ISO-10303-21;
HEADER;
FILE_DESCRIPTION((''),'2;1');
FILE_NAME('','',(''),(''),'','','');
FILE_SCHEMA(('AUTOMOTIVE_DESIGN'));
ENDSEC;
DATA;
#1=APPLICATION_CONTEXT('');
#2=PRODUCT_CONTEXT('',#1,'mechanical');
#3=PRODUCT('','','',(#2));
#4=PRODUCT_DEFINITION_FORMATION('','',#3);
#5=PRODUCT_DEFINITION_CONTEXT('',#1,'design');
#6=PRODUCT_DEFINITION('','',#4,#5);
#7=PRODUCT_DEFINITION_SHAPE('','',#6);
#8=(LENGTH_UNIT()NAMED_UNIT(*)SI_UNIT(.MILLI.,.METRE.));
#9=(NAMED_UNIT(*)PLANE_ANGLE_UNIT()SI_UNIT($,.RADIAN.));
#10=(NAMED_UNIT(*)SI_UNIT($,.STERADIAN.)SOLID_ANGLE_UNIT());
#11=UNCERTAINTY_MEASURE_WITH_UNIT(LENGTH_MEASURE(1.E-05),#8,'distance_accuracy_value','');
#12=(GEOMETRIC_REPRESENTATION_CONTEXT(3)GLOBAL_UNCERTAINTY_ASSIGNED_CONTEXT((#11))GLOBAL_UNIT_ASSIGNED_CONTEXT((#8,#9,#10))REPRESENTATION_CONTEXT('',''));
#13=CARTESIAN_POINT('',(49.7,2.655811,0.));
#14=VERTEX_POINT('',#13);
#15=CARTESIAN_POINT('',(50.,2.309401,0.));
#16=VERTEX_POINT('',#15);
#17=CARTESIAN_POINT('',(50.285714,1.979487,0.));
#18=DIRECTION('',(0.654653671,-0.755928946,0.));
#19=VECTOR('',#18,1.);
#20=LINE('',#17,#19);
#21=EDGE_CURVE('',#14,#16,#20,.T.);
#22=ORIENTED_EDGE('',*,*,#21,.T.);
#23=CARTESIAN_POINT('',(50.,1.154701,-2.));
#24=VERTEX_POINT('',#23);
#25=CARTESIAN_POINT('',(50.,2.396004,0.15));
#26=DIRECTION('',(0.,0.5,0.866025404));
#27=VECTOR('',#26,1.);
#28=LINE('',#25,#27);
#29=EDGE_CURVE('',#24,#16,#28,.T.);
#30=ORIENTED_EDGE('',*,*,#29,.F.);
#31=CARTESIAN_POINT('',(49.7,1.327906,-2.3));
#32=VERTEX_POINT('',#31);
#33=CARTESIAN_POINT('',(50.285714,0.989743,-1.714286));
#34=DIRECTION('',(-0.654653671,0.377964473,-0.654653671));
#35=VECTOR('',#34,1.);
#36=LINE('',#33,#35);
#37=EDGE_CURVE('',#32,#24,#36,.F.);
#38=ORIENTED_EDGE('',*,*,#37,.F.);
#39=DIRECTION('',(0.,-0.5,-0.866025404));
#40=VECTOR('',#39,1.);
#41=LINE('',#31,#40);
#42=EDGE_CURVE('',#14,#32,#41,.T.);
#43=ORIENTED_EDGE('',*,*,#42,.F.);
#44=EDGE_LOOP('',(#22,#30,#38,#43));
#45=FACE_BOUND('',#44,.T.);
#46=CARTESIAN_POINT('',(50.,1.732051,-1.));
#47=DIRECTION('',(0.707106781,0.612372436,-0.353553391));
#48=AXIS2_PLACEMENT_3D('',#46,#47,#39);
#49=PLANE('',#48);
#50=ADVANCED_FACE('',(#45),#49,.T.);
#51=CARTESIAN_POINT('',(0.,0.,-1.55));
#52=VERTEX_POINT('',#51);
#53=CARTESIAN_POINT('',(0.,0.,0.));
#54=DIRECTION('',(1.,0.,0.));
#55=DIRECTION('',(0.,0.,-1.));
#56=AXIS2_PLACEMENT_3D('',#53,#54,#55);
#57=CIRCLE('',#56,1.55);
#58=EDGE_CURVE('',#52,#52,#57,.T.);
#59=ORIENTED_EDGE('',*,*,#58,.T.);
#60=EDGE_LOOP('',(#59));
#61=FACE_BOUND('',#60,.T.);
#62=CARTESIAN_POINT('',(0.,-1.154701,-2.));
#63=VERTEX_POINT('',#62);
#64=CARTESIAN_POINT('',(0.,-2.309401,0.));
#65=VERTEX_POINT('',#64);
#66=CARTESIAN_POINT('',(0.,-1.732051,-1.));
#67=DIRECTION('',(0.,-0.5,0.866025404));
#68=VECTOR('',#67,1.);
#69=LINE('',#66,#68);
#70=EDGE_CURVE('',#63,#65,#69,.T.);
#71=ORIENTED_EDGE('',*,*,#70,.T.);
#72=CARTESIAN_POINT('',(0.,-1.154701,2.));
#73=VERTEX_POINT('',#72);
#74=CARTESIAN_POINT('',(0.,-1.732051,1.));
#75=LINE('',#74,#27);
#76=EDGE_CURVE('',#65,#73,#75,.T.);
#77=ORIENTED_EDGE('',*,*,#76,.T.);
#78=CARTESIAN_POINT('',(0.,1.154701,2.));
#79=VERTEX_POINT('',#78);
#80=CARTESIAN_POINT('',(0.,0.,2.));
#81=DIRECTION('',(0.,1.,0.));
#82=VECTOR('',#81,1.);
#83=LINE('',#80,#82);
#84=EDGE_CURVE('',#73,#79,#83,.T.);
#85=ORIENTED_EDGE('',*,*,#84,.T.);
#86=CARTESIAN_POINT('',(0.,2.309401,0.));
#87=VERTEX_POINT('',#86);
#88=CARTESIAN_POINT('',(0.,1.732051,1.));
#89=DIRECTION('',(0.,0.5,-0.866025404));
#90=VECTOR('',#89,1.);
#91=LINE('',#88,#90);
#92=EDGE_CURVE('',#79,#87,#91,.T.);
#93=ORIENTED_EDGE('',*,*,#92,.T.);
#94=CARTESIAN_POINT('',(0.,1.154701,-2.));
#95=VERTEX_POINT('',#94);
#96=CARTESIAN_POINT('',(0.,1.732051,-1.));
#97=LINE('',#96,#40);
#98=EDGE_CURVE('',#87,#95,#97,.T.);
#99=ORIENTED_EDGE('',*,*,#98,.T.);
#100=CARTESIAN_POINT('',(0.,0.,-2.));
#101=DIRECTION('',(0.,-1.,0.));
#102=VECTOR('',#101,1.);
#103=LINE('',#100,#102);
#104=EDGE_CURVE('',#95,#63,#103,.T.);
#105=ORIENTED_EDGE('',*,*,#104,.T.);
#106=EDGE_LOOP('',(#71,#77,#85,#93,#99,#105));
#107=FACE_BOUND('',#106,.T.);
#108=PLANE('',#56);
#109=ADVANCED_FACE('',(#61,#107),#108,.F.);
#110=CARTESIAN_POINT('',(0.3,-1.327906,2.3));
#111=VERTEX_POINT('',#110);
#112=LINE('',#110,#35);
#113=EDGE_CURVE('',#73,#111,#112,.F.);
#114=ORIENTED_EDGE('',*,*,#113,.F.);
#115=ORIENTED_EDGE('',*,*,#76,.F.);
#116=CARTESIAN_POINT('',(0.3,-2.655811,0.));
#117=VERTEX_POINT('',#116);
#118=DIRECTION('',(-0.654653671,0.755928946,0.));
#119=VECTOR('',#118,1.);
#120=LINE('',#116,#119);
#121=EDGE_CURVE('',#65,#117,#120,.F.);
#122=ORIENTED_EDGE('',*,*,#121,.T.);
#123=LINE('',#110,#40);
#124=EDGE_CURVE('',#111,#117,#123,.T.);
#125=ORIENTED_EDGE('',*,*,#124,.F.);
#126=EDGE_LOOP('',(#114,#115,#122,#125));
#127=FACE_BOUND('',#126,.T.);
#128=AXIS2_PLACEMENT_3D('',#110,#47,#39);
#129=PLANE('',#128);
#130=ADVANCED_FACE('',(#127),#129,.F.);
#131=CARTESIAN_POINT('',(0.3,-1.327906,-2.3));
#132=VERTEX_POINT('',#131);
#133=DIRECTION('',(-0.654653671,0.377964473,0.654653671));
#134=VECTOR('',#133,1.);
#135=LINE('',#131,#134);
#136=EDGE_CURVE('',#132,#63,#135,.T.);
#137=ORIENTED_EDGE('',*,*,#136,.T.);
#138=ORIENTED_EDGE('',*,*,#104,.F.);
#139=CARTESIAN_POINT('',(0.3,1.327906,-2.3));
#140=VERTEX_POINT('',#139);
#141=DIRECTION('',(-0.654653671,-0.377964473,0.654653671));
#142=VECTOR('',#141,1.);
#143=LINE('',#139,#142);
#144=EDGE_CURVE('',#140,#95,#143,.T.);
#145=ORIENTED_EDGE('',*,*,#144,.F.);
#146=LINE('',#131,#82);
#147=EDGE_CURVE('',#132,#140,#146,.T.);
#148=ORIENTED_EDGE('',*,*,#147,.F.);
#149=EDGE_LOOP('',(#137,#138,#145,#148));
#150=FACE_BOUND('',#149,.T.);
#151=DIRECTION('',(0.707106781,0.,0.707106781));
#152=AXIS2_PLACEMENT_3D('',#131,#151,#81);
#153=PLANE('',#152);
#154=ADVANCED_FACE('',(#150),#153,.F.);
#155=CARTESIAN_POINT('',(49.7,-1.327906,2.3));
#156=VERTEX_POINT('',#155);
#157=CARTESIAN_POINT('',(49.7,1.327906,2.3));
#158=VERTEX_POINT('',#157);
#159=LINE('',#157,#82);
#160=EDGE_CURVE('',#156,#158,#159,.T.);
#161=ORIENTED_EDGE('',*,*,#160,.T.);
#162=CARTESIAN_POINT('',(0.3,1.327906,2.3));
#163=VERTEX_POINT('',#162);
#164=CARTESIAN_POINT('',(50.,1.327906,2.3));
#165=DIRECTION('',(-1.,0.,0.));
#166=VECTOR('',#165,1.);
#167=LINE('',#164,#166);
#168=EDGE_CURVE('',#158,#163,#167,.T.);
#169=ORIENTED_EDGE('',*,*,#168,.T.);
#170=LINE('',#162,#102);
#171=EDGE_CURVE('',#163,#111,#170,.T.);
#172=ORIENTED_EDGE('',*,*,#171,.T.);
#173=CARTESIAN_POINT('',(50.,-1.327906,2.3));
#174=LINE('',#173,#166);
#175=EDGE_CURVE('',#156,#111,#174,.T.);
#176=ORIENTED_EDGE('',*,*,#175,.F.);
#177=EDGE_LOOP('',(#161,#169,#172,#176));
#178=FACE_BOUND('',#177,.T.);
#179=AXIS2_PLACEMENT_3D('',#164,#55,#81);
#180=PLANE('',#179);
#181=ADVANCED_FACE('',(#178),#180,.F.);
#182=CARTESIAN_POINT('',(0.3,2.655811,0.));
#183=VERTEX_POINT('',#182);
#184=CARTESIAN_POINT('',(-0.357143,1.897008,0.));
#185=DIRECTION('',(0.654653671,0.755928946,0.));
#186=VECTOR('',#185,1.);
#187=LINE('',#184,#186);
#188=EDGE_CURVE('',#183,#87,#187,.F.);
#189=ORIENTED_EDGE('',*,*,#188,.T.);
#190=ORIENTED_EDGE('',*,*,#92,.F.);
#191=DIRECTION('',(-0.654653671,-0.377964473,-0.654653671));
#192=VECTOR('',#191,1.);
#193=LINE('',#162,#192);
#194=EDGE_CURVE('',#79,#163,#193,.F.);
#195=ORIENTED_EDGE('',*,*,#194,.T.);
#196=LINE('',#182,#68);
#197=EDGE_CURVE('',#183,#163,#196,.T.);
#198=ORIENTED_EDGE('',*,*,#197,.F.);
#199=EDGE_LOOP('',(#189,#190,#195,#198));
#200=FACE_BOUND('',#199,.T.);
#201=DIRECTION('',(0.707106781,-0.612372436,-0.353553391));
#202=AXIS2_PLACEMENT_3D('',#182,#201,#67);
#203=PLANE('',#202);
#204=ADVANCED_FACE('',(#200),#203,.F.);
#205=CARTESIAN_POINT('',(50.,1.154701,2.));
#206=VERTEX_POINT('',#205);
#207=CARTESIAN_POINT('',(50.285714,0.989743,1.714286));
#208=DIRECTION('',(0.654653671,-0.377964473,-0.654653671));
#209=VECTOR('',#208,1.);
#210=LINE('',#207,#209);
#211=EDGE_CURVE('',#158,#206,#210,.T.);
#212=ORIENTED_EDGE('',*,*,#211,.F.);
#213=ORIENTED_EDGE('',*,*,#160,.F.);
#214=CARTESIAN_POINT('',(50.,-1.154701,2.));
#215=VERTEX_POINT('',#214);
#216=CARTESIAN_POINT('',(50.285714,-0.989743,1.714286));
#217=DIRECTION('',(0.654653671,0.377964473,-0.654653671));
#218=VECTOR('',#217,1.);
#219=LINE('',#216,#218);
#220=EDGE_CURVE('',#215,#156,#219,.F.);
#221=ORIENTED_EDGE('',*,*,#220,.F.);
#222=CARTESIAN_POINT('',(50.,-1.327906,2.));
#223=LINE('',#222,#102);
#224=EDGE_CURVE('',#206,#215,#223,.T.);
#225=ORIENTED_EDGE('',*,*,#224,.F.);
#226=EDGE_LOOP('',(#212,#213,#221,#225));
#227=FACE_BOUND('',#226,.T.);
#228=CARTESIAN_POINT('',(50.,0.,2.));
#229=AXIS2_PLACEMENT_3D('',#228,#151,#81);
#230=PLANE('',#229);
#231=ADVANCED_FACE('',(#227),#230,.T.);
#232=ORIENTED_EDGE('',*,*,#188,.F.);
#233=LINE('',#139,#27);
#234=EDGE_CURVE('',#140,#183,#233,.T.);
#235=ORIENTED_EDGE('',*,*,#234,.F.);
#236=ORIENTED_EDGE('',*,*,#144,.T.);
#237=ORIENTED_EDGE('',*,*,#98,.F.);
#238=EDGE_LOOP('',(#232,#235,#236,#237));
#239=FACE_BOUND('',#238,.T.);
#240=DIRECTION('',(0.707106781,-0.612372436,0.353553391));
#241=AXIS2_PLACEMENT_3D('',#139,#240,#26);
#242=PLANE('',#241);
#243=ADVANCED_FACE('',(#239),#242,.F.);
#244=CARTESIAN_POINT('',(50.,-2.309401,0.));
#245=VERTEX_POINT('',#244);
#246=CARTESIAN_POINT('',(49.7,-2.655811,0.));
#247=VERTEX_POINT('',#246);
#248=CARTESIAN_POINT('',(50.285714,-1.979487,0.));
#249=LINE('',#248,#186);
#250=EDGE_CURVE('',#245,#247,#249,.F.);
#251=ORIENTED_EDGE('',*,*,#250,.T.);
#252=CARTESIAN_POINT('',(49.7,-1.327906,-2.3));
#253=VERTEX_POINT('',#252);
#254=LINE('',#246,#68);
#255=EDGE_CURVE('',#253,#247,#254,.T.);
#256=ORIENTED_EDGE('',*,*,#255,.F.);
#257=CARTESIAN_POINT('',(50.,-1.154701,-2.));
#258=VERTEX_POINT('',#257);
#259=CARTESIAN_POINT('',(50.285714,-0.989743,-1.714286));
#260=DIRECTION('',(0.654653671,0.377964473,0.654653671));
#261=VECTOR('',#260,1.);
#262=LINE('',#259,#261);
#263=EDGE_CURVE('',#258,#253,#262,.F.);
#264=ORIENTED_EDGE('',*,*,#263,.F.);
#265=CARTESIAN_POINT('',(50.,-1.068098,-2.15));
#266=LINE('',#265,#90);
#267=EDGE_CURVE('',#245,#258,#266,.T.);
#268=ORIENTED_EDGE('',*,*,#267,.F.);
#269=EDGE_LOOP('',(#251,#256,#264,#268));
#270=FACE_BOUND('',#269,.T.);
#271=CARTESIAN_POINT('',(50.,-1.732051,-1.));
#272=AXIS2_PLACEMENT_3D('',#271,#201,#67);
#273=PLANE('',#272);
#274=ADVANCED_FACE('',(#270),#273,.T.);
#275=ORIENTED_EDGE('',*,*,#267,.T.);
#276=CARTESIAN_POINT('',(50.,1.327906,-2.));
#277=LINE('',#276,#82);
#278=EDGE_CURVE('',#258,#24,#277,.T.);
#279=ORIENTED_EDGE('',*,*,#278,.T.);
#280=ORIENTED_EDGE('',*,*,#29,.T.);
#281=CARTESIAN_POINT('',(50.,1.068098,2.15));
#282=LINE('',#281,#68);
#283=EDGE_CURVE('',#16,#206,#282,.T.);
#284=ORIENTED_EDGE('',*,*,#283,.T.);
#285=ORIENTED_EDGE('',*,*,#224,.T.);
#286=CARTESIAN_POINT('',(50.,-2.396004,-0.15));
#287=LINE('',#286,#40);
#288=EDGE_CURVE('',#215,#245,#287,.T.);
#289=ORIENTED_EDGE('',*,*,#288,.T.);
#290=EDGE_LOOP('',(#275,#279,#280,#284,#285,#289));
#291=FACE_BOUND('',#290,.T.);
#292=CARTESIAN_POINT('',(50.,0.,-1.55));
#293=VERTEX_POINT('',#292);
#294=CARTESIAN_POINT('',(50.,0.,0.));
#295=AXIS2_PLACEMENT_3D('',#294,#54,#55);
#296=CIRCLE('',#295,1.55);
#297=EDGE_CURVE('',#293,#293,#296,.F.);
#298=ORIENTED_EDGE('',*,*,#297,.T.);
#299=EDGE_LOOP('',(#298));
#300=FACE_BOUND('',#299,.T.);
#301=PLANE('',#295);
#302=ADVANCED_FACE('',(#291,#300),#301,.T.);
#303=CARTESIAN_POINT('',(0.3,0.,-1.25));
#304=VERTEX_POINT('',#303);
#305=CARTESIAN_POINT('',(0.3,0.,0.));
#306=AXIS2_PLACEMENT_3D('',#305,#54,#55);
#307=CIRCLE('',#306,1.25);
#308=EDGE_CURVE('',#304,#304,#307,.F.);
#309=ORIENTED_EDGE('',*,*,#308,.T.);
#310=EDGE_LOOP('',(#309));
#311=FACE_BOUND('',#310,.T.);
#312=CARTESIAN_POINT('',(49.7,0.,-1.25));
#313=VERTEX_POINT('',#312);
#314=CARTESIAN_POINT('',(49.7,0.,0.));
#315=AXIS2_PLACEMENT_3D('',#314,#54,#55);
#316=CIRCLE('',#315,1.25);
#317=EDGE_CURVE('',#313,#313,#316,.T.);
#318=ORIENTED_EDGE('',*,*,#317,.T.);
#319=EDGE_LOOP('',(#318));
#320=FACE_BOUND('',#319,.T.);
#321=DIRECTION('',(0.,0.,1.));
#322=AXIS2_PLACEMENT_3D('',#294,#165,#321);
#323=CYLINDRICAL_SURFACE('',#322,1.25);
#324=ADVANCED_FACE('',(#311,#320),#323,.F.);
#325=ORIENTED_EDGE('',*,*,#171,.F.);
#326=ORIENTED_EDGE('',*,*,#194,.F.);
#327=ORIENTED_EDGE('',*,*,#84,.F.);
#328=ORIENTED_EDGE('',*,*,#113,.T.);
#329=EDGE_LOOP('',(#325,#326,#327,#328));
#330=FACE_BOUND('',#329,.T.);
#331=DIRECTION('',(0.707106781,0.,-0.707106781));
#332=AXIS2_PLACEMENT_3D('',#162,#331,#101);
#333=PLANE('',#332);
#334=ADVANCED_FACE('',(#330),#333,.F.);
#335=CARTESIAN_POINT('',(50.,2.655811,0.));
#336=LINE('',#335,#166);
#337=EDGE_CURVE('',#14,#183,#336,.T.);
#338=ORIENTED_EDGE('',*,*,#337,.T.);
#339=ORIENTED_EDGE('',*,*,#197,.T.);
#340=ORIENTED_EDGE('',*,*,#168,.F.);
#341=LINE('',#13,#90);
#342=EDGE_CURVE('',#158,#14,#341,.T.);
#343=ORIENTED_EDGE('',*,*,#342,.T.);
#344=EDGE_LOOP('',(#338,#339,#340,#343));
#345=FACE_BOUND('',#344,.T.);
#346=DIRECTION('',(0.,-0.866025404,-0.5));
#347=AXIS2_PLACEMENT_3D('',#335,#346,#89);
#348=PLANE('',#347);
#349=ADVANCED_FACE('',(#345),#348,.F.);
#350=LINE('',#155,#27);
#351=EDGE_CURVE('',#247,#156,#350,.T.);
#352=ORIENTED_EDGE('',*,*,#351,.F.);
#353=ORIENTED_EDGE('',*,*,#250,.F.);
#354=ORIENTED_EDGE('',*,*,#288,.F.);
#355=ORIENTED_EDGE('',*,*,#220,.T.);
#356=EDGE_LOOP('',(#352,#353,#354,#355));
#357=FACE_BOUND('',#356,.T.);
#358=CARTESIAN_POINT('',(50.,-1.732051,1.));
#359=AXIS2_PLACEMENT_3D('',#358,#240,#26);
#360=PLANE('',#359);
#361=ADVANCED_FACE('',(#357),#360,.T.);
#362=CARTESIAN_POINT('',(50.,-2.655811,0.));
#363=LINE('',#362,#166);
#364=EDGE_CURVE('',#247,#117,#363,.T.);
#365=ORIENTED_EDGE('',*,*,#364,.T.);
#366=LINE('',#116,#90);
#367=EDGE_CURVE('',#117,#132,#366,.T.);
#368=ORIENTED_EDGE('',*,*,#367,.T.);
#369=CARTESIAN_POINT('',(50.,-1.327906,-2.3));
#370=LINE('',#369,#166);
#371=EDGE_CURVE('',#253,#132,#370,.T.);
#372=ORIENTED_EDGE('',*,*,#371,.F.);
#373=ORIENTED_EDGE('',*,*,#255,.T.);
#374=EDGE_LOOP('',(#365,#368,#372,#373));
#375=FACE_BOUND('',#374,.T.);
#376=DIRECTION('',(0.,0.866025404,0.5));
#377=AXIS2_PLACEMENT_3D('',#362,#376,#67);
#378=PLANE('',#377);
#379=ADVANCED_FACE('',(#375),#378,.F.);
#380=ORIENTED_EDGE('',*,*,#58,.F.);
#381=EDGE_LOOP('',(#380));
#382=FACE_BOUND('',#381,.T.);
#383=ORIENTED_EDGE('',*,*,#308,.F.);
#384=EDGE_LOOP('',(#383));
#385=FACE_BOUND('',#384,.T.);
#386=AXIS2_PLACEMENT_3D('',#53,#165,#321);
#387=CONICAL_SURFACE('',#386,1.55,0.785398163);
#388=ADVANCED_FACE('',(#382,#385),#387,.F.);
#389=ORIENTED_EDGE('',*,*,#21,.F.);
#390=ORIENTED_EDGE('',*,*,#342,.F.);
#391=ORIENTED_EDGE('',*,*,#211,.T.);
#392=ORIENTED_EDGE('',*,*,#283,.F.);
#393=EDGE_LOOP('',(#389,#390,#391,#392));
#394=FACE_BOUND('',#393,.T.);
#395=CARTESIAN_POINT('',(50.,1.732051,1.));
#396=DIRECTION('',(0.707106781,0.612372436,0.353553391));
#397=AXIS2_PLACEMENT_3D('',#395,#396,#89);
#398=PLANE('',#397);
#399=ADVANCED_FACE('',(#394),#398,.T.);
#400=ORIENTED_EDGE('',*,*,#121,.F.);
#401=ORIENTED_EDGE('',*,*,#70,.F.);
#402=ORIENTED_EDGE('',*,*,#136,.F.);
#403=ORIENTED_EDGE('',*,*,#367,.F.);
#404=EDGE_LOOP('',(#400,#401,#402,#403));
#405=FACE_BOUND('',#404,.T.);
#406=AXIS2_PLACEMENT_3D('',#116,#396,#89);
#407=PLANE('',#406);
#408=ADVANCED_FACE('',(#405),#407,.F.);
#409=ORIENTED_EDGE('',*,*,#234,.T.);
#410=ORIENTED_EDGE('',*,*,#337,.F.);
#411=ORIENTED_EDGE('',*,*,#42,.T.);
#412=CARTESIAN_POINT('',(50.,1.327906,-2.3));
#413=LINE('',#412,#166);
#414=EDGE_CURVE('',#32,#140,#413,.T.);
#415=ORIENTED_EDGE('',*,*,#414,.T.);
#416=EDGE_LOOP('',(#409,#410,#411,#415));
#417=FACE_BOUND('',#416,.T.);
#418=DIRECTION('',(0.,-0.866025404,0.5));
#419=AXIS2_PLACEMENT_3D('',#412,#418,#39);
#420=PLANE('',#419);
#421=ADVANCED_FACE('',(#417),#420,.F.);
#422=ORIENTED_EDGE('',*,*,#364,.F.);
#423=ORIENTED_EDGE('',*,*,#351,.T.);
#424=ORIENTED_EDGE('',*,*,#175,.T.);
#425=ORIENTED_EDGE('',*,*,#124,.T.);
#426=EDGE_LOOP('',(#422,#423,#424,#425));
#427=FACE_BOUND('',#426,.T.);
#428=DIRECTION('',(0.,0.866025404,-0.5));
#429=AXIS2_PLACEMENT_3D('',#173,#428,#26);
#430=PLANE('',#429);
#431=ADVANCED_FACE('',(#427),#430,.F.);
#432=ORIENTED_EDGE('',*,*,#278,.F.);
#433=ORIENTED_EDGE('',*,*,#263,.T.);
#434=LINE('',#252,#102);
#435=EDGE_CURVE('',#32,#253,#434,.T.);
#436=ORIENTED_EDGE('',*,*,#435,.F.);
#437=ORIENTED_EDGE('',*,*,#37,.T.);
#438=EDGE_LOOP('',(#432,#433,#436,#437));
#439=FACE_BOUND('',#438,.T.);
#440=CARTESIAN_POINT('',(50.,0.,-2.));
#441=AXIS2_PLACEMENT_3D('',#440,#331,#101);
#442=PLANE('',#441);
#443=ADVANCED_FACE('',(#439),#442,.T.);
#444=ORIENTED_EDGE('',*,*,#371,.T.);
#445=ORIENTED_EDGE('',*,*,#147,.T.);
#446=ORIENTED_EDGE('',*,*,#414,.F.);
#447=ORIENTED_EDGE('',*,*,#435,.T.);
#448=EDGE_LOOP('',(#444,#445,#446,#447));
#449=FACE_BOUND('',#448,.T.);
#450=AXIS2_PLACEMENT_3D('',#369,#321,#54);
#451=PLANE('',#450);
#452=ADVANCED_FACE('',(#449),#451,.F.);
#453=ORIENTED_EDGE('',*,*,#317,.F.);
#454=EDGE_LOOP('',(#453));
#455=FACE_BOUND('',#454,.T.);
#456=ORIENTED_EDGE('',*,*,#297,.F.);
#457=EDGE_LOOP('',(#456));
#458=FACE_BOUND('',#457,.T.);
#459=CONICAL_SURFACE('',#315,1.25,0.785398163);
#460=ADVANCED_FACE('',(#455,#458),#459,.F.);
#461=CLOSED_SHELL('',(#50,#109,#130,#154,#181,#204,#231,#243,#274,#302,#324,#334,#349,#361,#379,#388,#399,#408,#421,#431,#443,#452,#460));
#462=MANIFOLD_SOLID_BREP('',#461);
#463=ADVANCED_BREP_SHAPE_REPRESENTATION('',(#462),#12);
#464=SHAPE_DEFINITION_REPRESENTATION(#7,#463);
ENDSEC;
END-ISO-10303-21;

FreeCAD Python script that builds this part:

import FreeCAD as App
import Part
import Sketcher
from FreeCAD import Vector
Q = App.Units.Quantity


def edges_at(feature, points):
    """Names of the edges that pass closest to the given points."""
    edges = feature.Shape.Edges
    near = lambda p: min(range(len(edges)), key=lambda i: edges[i].distToShape(Part.Vertex(*p))[0])
    return sorted({f"Edge{near(p) + 1}" for p in points})


def add_polygon(sketch, points):
    """Adds a closed chain of lines whose ends are joined by coincident constraints."""
    first, n = sketch.GeometryCount, len(points)
    for a, b in zip(points, points[1:] + points[:1]):
        sketch.addGeometry(Part.LineSegment(App.Vector(*a, 0), App.Vector(*b, 0)), False)
    for i in range(n):
        sketch.addConstraint(Sketcher.Constraint("Coincident", first + i, 2, first + (i + 1) % n, 1))

doc = App.newDocument("Part")
params = doc.addObject("Spreadsheet::Sheet", "Params")
for row, (alias, value) in enumerate([
    ("sketch1_diameter", "2.5 mm"),
    ("pad1_length", "50 mm"),
    ("chamfer_size", "0.3 mm"),
], start=1):
    params.set(f"A{row}", alias)
    params.set(f"B{row}", "=" + value)
    params.setAlias(f"B{row}", alias)

body = doc.addObject("PartDesign::Body", "Body")

sketch1 = body.newObject("Sketcher::SketchObject", "Sketch")
sketch1.AttachmentSupport = (doc.getObject("YZ_Plane"), [""])
sketch1.MapMode = "FlatFace"
add_polygon(sketch1, [(2.7, 0), (1.3, 2.3), (-1.3, 2.3), (-2.7, 0), (-1.3, -2.3), (1.3, -2.3)])
sketch1.addGeometry(Part.Circle(Vector(0, 0, 0), Vector(0, 0, 1), 1.2), False)
sketch1.addConstraint([
    Sketcher.Constraint("Horizontal", 1),
    Sketcher.Constraint("Horizontal", 4),
    Sketcher.Constraint("Coincident", 6, 3, -1, 1),
    Sketcher.Constraint("Symmetric", 0, 2, 3, 2, -1, 1),
    Sketcher.Constraint("Symmetric", 2, 2, 5, 2, -1, 1),
    Sketcher.Constraint("PointOnObject", 2, 2, -1),
    Sketcher.Constraint("Parallel", 2, 5),
    Sketcher.Constraint("Vertical", 1, 2, 3, 2),
    Sketcher.Constraint("Diameter", 6, 2.5),
    Sketcher.Constraint("Angle", 0, Q("120 deg")),
    Sketcher.Constraint("DistanceY", -1, 1, 0, 2, 2.3),
    Sketcher.Constraint("DistanceX", 1, 2, 1, 1, 2.655811),
])
sketch1.setExpression("Constraints[14]", "Params.sketch1_diameter")
pad1 = body.newObject("PartDesign::Pad", "Pad")
pad1.Profile = sketch1
pad1.setExpression("Length", "Params.pad1_length")
doc.recompute()

chamfer = body.newObject("PartDesign::Chamfer", "Chamfer")
chamfer.Base = (pad1, edges_at(pad1, [
    (50, 0, 2.3),
    (50, -1.992, 1.15),
    (0, 0, 1.25),
    (50, 0, 1.25),
    (50, -1.992, -1.15),
    (50, 0, -2.3),
    (50, 1.992, -1.15),
    (0, 0, -2.3),
    (0, -1.992, -1.15),
    (0, -1.992, 1.15),
    (0, 0, 2.3),
    (0, 1.992, 1.15),
    (0, 1.992, -1.15),
    (50, 1.992, 1.15),
]))
chamfer.setExpression("Size", "Params.chamfer_size")

doc.recompute()
